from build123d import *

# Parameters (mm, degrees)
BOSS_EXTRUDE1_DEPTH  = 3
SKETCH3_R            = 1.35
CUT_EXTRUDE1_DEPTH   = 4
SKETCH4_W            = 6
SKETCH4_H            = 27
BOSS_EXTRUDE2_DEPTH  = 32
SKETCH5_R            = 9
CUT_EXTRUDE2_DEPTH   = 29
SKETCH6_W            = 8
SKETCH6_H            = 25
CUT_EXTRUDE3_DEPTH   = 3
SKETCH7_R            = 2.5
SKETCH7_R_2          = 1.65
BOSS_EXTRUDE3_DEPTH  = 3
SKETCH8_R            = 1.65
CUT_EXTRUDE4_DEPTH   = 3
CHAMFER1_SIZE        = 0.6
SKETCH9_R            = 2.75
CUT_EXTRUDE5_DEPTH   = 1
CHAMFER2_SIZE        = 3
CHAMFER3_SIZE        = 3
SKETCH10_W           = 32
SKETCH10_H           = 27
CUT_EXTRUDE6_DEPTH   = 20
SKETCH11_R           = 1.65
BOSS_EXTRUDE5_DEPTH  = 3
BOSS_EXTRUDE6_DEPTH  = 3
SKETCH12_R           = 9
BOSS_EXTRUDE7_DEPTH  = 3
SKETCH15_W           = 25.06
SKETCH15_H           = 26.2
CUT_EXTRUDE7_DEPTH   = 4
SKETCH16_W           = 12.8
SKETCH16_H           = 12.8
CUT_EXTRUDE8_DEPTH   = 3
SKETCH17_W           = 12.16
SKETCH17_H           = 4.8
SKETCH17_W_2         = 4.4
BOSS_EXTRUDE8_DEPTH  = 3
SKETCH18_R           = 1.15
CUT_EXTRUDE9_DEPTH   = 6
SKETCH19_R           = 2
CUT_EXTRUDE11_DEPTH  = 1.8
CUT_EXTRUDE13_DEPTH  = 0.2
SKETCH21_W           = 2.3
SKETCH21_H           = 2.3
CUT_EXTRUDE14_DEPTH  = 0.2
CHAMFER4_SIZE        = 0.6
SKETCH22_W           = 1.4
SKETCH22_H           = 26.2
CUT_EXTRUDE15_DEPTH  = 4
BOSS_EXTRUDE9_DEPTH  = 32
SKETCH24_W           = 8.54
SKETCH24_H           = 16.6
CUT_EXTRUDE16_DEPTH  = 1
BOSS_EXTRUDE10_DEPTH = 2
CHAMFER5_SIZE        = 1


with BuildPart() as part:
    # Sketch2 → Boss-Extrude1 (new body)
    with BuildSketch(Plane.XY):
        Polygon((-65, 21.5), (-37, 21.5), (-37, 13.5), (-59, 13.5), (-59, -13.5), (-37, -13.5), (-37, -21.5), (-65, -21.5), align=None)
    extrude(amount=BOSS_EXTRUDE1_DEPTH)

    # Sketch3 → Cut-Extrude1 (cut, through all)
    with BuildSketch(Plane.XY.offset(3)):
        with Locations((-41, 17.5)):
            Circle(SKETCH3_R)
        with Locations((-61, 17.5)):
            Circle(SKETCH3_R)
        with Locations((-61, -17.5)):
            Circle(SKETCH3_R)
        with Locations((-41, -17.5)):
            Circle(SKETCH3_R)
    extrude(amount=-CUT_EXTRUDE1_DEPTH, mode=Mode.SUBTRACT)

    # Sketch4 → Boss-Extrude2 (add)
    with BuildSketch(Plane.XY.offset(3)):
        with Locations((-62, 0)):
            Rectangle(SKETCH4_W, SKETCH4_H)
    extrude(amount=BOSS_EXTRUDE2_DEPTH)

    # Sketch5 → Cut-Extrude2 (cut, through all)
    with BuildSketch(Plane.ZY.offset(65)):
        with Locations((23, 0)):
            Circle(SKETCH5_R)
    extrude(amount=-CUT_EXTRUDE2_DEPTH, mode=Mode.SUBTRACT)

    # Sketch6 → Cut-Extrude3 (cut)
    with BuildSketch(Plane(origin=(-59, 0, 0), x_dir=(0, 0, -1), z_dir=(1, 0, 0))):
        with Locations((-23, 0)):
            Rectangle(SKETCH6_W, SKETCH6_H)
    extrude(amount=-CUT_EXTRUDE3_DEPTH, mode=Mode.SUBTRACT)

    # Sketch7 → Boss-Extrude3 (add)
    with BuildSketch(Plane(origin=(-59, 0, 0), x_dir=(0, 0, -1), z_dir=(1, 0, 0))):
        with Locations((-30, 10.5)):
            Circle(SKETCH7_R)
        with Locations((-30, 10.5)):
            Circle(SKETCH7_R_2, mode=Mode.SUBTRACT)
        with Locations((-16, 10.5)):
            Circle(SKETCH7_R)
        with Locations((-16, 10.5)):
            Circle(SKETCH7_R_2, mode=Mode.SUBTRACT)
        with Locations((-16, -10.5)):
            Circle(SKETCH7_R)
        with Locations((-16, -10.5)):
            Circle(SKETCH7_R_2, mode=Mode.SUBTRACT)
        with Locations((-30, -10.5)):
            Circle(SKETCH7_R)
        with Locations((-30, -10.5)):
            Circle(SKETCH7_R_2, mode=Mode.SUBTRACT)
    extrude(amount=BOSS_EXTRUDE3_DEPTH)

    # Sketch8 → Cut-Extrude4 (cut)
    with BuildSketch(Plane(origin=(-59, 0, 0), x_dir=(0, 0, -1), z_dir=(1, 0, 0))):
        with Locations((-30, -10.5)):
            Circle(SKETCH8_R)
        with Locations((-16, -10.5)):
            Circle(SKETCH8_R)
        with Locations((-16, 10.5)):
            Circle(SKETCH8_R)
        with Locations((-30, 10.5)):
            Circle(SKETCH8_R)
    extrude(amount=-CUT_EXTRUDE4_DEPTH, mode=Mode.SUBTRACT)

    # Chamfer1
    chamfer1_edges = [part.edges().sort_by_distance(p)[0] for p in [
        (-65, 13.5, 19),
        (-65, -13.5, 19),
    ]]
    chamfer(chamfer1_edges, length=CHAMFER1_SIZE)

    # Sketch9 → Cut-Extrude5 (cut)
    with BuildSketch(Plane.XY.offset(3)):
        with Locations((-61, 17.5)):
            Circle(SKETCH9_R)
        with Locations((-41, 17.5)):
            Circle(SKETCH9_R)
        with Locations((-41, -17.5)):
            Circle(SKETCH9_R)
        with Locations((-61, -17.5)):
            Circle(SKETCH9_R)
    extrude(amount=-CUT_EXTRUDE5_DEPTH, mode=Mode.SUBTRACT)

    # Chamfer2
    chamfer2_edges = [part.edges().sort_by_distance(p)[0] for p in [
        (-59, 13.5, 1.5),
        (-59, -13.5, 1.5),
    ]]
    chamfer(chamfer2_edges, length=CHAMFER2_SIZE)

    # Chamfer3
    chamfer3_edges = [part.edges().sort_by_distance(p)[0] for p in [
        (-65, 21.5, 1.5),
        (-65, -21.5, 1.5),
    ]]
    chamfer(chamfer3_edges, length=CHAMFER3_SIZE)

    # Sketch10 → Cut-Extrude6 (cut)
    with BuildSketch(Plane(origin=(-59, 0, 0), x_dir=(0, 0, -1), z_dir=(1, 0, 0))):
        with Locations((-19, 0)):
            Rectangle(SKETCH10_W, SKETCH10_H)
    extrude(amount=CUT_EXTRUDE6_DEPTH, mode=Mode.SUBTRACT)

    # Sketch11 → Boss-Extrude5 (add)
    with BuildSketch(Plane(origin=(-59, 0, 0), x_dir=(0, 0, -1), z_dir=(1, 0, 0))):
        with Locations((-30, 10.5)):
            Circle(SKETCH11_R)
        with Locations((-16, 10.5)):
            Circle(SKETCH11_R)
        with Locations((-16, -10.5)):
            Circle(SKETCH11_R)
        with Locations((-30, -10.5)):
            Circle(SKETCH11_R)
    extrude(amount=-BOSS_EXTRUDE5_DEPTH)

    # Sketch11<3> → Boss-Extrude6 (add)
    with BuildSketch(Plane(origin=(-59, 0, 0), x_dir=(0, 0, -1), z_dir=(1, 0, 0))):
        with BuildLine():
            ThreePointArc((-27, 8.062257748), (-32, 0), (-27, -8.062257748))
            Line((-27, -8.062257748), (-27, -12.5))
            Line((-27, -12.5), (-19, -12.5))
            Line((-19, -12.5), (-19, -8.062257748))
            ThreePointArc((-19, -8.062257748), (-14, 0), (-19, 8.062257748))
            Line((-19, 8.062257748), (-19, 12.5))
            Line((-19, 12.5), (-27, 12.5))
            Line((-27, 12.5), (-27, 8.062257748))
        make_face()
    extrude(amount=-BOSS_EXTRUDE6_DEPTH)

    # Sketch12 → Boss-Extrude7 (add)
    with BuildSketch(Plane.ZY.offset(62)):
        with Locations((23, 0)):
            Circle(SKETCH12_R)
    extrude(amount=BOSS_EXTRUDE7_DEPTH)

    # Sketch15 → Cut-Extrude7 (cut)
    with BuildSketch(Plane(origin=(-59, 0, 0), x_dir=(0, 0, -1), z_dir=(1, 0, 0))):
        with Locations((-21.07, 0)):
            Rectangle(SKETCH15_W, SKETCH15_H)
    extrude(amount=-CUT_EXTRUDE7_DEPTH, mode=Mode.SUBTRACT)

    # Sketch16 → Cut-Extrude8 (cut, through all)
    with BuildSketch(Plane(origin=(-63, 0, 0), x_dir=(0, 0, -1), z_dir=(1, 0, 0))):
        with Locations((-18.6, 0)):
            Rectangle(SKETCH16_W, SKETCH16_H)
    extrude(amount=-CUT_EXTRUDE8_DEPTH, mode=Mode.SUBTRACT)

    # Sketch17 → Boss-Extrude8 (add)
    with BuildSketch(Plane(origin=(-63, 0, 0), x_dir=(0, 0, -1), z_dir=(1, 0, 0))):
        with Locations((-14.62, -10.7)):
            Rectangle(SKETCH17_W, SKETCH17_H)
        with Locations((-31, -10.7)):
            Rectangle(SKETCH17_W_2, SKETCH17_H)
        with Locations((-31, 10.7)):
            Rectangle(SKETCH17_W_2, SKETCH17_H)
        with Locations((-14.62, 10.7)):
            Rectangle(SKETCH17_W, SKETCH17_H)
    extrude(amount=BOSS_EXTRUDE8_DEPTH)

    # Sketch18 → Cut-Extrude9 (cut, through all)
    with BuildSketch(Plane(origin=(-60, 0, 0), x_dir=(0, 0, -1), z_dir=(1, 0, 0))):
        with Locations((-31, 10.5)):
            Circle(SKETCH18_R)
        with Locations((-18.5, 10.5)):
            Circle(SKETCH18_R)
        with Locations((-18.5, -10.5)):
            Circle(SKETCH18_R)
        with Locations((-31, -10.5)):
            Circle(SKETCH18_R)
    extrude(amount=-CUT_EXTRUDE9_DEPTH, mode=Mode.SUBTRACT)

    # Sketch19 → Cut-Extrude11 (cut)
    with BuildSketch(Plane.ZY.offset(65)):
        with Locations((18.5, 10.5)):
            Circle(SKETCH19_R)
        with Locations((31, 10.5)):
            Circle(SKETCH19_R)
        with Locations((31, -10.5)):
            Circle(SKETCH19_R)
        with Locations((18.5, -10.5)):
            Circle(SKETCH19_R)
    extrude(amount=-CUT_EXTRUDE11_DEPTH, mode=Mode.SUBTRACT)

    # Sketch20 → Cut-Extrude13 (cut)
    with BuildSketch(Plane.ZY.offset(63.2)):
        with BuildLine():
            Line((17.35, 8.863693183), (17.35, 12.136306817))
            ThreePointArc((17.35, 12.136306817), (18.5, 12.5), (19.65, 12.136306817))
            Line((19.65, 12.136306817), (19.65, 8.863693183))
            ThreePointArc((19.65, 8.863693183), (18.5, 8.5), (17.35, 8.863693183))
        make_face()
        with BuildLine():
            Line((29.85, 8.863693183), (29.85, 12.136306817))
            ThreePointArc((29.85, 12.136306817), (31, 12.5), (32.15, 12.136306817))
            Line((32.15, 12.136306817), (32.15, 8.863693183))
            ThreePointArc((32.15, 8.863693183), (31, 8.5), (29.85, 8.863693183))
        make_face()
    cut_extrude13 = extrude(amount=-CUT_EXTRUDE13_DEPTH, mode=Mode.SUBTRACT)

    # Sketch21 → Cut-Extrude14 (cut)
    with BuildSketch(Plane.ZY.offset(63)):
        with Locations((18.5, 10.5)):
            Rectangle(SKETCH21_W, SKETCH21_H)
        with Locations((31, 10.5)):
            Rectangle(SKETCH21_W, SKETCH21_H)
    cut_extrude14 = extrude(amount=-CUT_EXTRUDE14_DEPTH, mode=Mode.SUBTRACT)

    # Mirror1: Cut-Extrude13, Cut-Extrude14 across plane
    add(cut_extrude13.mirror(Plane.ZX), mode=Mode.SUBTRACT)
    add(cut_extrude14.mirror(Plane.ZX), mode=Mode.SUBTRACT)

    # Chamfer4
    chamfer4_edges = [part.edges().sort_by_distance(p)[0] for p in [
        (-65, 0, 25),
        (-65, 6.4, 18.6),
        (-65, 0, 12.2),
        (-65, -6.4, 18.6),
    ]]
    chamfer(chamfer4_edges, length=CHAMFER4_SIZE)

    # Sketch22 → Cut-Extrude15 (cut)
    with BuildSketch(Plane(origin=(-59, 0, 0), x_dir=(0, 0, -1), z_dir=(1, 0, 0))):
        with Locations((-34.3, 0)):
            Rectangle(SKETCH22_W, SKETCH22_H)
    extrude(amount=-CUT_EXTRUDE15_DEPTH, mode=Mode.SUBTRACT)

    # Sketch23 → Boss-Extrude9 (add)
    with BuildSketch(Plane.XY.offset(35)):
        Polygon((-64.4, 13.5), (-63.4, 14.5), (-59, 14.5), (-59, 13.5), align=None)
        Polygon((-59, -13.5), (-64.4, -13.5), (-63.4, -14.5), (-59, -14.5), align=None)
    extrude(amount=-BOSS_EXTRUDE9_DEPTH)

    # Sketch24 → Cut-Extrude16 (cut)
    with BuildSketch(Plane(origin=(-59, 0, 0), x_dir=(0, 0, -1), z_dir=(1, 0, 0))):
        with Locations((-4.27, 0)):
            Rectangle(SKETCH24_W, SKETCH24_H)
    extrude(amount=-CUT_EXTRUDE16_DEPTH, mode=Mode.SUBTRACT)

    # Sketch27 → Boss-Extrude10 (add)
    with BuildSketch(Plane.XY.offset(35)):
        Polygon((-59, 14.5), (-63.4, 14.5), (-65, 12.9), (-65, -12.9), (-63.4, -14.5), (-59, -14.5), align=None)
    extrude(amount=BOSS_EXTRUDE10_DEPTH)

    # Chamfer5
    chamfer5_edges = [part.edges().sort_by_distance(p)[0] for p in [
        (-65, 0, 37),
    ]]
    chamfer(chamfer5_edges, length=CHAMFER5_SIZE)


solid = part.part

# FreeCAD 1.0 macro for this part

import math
import FreeCAD as App
import Part
import Sketcher

V = App.Vector
Q = App.Units.Quantity


def edges_at(feature, points):
    """Names of the edges that pass closest to the given points."""
    edges = feature.Shape.Edges
    near = lambda p: min(range(len(edges)), key=lambda i: edges[i].distToShape(Part.Vertex(*p))[0])
    return sorted({f"Edge{near(p) + 1}" for p in points})

doc = App.newDocument("Part")
body = doc.addObject("PartDesign::Body", "Body")

sketch1 = body.newObject("Sketcher::SketchObject", "Sketch")
sketch1.AttachmentSupport = (doc.getObject("XY_Plane"), [""])
sketch1.MapMode = "FlatFace"
sketch1.addGeometry([
    Part.LineSegment(V(-37, 22, 0), V(-65, 22, 0)),
    Part.LineSegment(V(-65, 22, 0), V(-65, -22, 0)),
    Part.LineSegment(V(-65, -22, 0), V(-37, -22, 0)),
    Part.LineSegment(V(-37, -22, 0), V(-37, -14, 0)),
    Part.LineSegment(V(-37, -14, 0), V(-59, -14, 0)),
    Part.LineSegment(V(-59, -14, 0), V(-59, 14, 0)),
    Part.LineSegment(V(-59, 14, 0), V(-37, 14, 0)),
    Part.LineSegment(V(-37, 14, 0), V(-37, 22, 0)),
], False)
sketch1.addConstraint([
    Sketcher.Constraint("Coincident", 0, 2, 1, 1),
    Sketcher.Constraint("Coincident", 1, 2, 2, 1),
    Sketcher.Constraint("Coincident", 2, 2, 3, 1),
    Sketcher.Constraint("Coincident", 3, 2, 4, 1),
    Sketcher.Constraint("Coincident", 4, 2, 5, 1),
    Sketcher.Constraint("Coincident", 5, 2, 6, 1),
    Sketcher.Constraint("Coincident", 6, 2, 7, 1),
    Sketcher.Constraint("Coincident", 7, 2, 0, 1),
    Sketcher.Constraint("Horizontal", 0),
    Sketcher.Constraint("Vertical", 1),
    Sketcher.Constraint("Horizontal", 2),
    Sketcher.Constraint("Vertical", 3),
    Sketcher.Constraint("Horizontal", 4),
    Sketcher.Constraint("Vertical", 5),
    Sketcher.Constraint("Horizontal", 6),
    Sketcher.Constraint("Vertical", 7),
    Sketcher.Constraint("Symmetric", 3, 2, 6, 2, -1),
    Sketcher.Constraint("Equal", 3, 7),
    Sketcher.Constraint("DistanceX", 0, 2, 0, 1, Q("28 mm")),
    Sketcher.Constraint("DistanceX", 4, 2, 4, 1, Q("22 mm")),
    Sketcher.Constraint("DistanceY", 1, 2, 1, 1, Q("43 mm")),
    Sketcher.Constraint("DistanceY", 3, 1, 3, 2, Q("8 mm")),
    Sketcher.Constraint("DistanceX", 0, 2, -1, 1, Q("65 mm")),
])
pad1 = body.newObject("PartDesign::Pad", "Pad")
pad1.Profile = sketch1
pad1.Length = 3

sketch2 = body.newObject("Sketcher::SketchObject", "Sketch001")
sketch2.AttachmentSupport = (doc.getObject("XY_Plane"), [""])
sketch2.MapMode = "FlatFace"
sketch2.AttachmentOffset = App.Placement(V(0, 0, 3), App.Rotation())
sketch2.addGeometry([
    Part.Circle(V(-41, 17.5, 0), V(0, 0, 1), 1.4),
    Part.Circle(V(-61, 17.5, 0), V(0, 0, 1), 1.4),
    Part.Circle(V(-61, -17.5, 0), V(0, 0, 1), 1.4),
    Part.Circle(V(-41, -17.5, 0), V(0, 0, 1), 1.4),
], False)
sketch2.addConstraint([
    Sketcher.Constraint("Equal", 0, 1),
    Sketcher.Constraint("Equal", 1, 2),
    Sketcher.Constraint("Equal", 2, 3),
    Sketcher.Constraint("Symmetric", 1, 3, 2, 3, -1),
    Sketcher.Constraint("Symmetric", 0, 3, 3, 3, -1),
    Sketcher.Constraint("Horizontal", 0, 3, 1, 3),
    Sketcher.Constraint("Diameter", 0, Q("2.7 mm")),
    Sketcher.Constraint("DistanceX", 0, 3, -1, 1, Q("41 mm")),
    Sketcher.Constraint("DistanceX", 1, 3, -1, 1, Q("61 mm")),
    Sketcher.Constraint("DistanceY", 2, 3, 1, 3, Q("35 mm")),
])
pocket1 = body.newObject("PartDesign::Pocket", "Pocket")
pocket1.Profile = sketch2
pocket1.Type = "ThroughAll"

sketch3 = body.newObject("Sketcher::SketchObject", "Sketch002")
sketch3.AttachmentSupport = (doc.getObject("XY_Plane"), [""])
sketch3.MapMode = "FlatFace"
sketch3.AttachmentOffset = App.Placement(V(0, 0, 3), App.Rotation())
sketch3.addGeometry([
    Part.LineSegment(V(-65, 14, 0), V(-65, -14, 0)),
    Part.LineSegment(V(-65, -14, 0), V(-59, -14, 0)),
    Part.LineSegment(V(-59, -14, 0), V(-59, 14, 0)),
    Part.LineSegment(V(-59, 14, 0), V(-65, 14, 0)),
], False)
sketch3.addConstraint([
    Sketcher.Constraint("Coincident", 0, 2, 1, 1),
    Sketcher.Constraint("Coincident", 1, 2, 2, 1),
    Sketcher.Constraint("Coincident", 2, 2, 3, 1),
    Sketcher.Constraint("Coincident", 3, 2, 0, 1),
    Sketcher.Constraint("Vertical", 0),
    Sketcher.Constraint("Horizontal", 1),
    Sketcher.Constraint("Vertical", 2),
    Sketcher.Constraint("Horizontal", 3),
    Sketcher.Constraint("DistanceX", 1, 1, 1, 2, Q("6 mm")),
    Sketcher.Constraint("DistanceY", 0, 2, 0, 1, Q("27 mm")),
    Sketcher.Constraint("DistanceX", 0, 2, -1, 1, Q("65 mm")),
    Sketcher.Constraint("DistanceY", 0, 2, -1, 1, Q("13.5 mm")),
])
pad2 = body.newObject("PartDesign::Pad", "Pad001")
pad2.Profile = sketch3
pad2.Length = 32

sketch4 = body.newObject("Sketcher::SketchObject", "Sketch003")
sketch4.AttachmentSupport = (doc.getObject("YZ_Plane"), [""])
sketch4.MapMode = "FlatFace"
sketch4.AttachmentOffset = App.Placement(V(0, 0, -65), App.Rotation())
sketch4.addGeometry(Part.Circle(V(0, 23, 0), V(0, 0, 1), 9), False)
sketch4.addConstraint([
    Sketcher.Constraint("PointOnObject", 0, 3, -2),
    Sketcher.Constraint("Diameter", 0, Q("18 mm")),
    Sketcher.Constraint("DistanceY", -1, 1, 0, 3, Q("23 mm")),
])
pocket2 = body.newObject("PartDesign::Pocket", "Pocket001")
pocket2.Profile = sketch4
pocket2.Type = "ThroughAll"
pocket2.Reversed = True

sketch5 = body.newObject("Sketcher::SketchObject", "Sketch004")
sketch5.AttachmentSupport = (doc.getObject("YZ_Plane"), [""])
sketch5.MapMode = "FlatFace"
sketch5.AttachmentOffset = App.Placement(V(0, 0, -59), App.Rotation())
sketch5.addGeometry([
    Part.LineSegment(V(12, 27, 0), V(-12, 27, 0)),
    Part.LineSegment(V(-12, 27, 0), V(-12, 19, 0)),
    Part.LineSegment(V(-12, 19, 0), V(12, 19, 0)),
    Part.LineSegment(V(12, 19, 0), V(12, 27, 0)),
], False)
sketch5.addConstraint([
    Sketcher.Constraint("Coincident", 0, 2, 1, 1),
    Sketcher.Constraint("Coincident", 1, 2, 2, 1),
    Sketcher.Constraint("Coincident", 2, 2, 3, 1),
    Sketcher.Constraint("Coincident", 3, 2, 0, 1),
    Sketcher.Constraint("Horizontal", 0),
    Sketcher.Constraint("Vertical", 1),
    Sketcher.Constraint("Horizontal", 2),
    Sketcher.Constraint("Vertical", 3),
    Sketcher.Constraint("DistanceX", 0, 2, 0, 1, Q("25 mm")),
    Sketcher.Constraint("DistanceY", 1, 2, 1, 1, Q("8 mm")),
    Sketcher.Constraint("DistanceY", -1, 1, 0, 2, Q("27 mm")),
    Sketcher.Constraint("DistanceX", 0, 2, -1, 1, Q("12.5 mm")),
])
pocket3 = body.newObject("PartDesign::Pocket", "Pocket002")
pocket3.Profile = sketch5
pocket3.Length = 3

sketch6 = body.newObject("Sketcher::SketchObject", "Sketch005")
sketch6.AttachmentSupport = (doc.getObject("YZ_Plane"), [""])
sketch6.MapMode = "FlatFace"
sketch6.AttachmentOffset = App.Placement(V(0, 0, -59), App.Rotation())
sketch6.addGeometry([
    Part.Circle(V(10.5, 30, 0), V(0, 0, 1), 2.5),
    Part.Circle(V(10.5, 30, 0), V(0, 0, 1), 1.6),
    Part.Circle(V(10.5, 16, 0), V(0, 0, 1), 2.5),
    Part.Circle(V(10.5, 16, 0), V(0, 0, 1), 1.6),
    Part.Circle(V(-10.5, 16, 0), V(0, 0, 1), 2.5),
    Part.Circle(V(-10.5, 16, 0), V(0, 0, 1), 1.6),
    Part.Circle(V(-10.5, 30, 0), V(0, 0, 1), 2.5),
    Part.Circle(V(-10.5, 30, 0), V(0, 0, 1), 1.6),
], False)
sketch6.addConstraint([
    Sketcher.Constraint("Coincident", 1, 3, 0, 3),
    Sketcher.Constraint("Coincident", 3, 3, 2, 3),
    Sketcher.Constraint("Coincident", 5, 3, 4, 3),
    Sketcher.Constraint("Coincident", 7, 3, 6, 3),
    Sketcher.Constraint("Equal", 0, 2),
    Sketcher.Constraint("Equal", 1, 3),
    Sketcher.Constraint("Equal", 2, 4),
    Sketcher.Constraint("Equal", 3, 5),
    Sketcher.Constraint("Equal", 4, 6),
    Sketcher.Constraint("Equal", 5, 7),
    Sketcher.Constraint("Symmetric", 2, 3, 4, 3, -2),
    Sketcher.Constraint("Symmetric", 0, 3, 6, 3, -2),
    Sketcher.Constraint("Vertical", 1, 3, 2, 3),
    Sketcher.Constraint("Diameter", 0, Q("5 mm")),
    Sketcher.Constraint("Diameter", 1, Q("3.3 mm")),
    Sketcher.Constraint("DistanceY", -1, 1, 0, 3, Q("30 mm")),
    Sketcher.Constraint("DistanceY", -1, 1, 2, 3, Q("16 mm")),
    Sketcher.Constraint("DistanceX", 4, 3, 2, 3, Q("21 mm")),
])
pad3 = body.newObject("PartDesign::Pad", "Pad002")
pad3.Profile = sketch6
pad3.Length = 3

sketch7 = body.newObject("Sketcher::SketchObject", "Sketch006")
sketch7.AttachmentSupport = (doc.getObject("YZ_Plane"), [""])
sketch7.MapMode = "FlatFace"
sketch7.AttachmentOffset = App.Placement(V(0, 0, -59), App.Rotation())
sketch7.addGeometry([
    Part.Circle(V(-10.5, 30, 0), V(0, 0, 1), 1.6),
    Part.Circle(V(-10.5, 16, 0), V(0, 0, 1), 1.6),
    Part.Circle(V(10.5, 16, 0), V(0, 0, 1), 1.6),
    Part.Circle(V(10.5, 30, 0), V(0, 0, 1), 1.6),
], False)
sketch7.addConstraint([
    Sketcher.Constraint("Equal", 0, 1),
    Sketcher.Constraint("Equal", 1, 2),
    Sketcher.Constraint("Equal", 2, 3),
    Sketcher.Constraint("Symmetric", 1, 3, 2, 3, -2),
    Sketcher.Constraint("Symmetric", 0, 3, 3, 3, -2),
    Sketcher.Constraint("Vertical", 0, 3, 1, 3),
    Sketcher.Constraint("Diameter", 0, Q("3.3 mm")),
    Sketcher.Constraint("DistanceY", -1, 1, 0, 3, Q("30 mm")),
    Sketcher.Constraint("DistanceY", -1, 1, 1, 3, Q("16 mm")),
    Sketcher.Constraint("DistanceX", 1, 3, 2, 3, Q("21 mm")),
])
pocket4 = body.newObject("PartDesign::Pocket", "Pocket003")
pocket4.Profile = sketch7
pocket4.Length = 3
doc.recompute()

chamfer = body.newObject("PartDesign::Chamfer", "Chamfer")
chamfer.Base = (pocket4, edges_at(pocket4, [(-65, 13.5, 19), (-65, -13.5, 19)]))
chamfer.Size = 0.6

sketch8 = body.newObject("Sketcher::SketchObject", "Sketch007")
sketch8.AttachmentSupport = (doc.getObject("XY_Plane"), [""])
sketch8.MapMode = "FlatFace"
sketch8.AttachmentOffset = App.Placement(V(0, 0, 3), App.Rotation())
sketch8.addGeometry([
    Part.Circle(V(-61, 17.5, 0), V(0, 0, 1), 2.8),
    Part.Circle(V(-41, 17.5, 0), V(0, 0, 1), 2.8),
    Part.Circle(V(-41, -17.5, 0), V(0, 0, 1), 2.8),
    Part.Circle(V(-61, -17.5, 0), V(0, 0, 1), 2.8),
], False)
sketch8.addConstraint([
    Sketcher.Constraint("Equal", 0, 1),
    Sketcher.Constraint("Equal", 1, 2),
    Sketcher.Constraint("Equal", 2, 3),
    Sketcher.Constraint("Symmetric", 1, 3, 2, 3, -1),
    Sketcher.Constraint("Symmetric", 0, 3, 3, 3, -1),
    Sketcher.Constraint("Horizontal", 0, 3, 1, 3),
    Sketcher.Constraint("Diameter", 0, Q("5.5 mm")),
    Sketcher.Constraint("DistanceX", 0, 3, -1, 1, Q("61 mm")),
    Sketcher.Constraint("DistanceX", 1, 3, -1, 1, Q("41 mm")),
    Sketcher.Constraint("DistanceY", 2, 3, 1, 3, Q("35 mm")),
])
pocket5 = body.newObject("PartDesign::Pocket", "Pocket004")
pocket5.Profile = sketch8
pocket5.Length = 1
doc.recompute()

chamfer2 = body.newObject("PartDesign::Chamfer", "Chamfer001")
chamfer2.Base = (pocket5, edges_at(pocket5, [(-59, 13.5, 1.5), (-59, -13.5, 1.5)]))
chamfer2.Size = 3
doc.recompute()

chamfer3 = body.newObject("PartDesign::Chamfer", "Chamfer002")
chamfer3.Base = (chamfer2, edges_at(chamfer2, [(-65, 21.5, 1.5), (-65, -21.5, 1.5)]))
chamfer3.Size = 3

sketch9 = body.newObject("Sketcher::SketchObject", "Sketch008")
sketch9.AttachmentSupport = (doc.getObject("YZ_Plane"), [""])
sketch9.MapMode = "FlatFace"
sketch9.AttachmentOffset = App.Placement(V(0, 0, -59), App.Rotation())
sketch9.addGeometry([
    Part.LineSegment(V(14, 35, 0), V(-14, 35, 0)),
    Part.LineSegment(V(-14, 35, 0), V(-14, 3, 0)),
    Part.LineSegment(V(-14, 3, 0), V(14, 3, 0)),
    Part.LineSegment(V(14, 3, 0), V(14, 35, 0)),
], False)
sketch9.addConstraint([
    Sketcher.Constraint("Coincident", 0, 2, 1, 1),
    Sketcher.Constraint("Coincident", 1, 2, 2, 1),
    Sketcher.Constraint("Coincident", 2, 2, 3, 1),
    Sketcher.Constraint("Coincident", 3, 2, 0, 1),
    Sketcher.Constraint("Horizontal", 0),
    Sketcher.Constraint("Vertical", 1),
    Sketcher.Constraint("Horizontal", 2),
    Sketcher.Constraint("Vertical", 3),
    Sketcher.Constraint("DistanceX", 0, 2, 0, 1, Q("27 mm")),
    Sketcher.Constraint("DistanceY", 1, 2, 1, 1, Q("32 mm")),
    Sketcher.Constraint("DistanceY", -1, 1, 0, 2, Q("35 mm")),
    Sketcher.Constraint("DistanceX", 0, 2, -1, 1, Q("13.5 mm")),
])
pocket6 = body.newObject("PartDesign::Pocket", "Pocket005")
pocket6.Profile = sketch9
pocket6.Length = 20
pocket6.Reversed = True

sketch10 = body.newObject("Sketcher::SketchObject", "Sketch009")
sketch10.AttachmentSupport = (doc.getObject("YZ_Plane"), [""])
sketch10.MapMode = "FlatFace"
sketch10.AttachmentOffset = App.Placement(V(0, 0, -59), App.Rotation())
sketch10.addGeometry([
    Part.Circle(V(10.5, 30, 0), V(0, 0, 1), 1.6),
    Part.Circle(V(10.5, 16, 0), V(0, 0, 1), 1.6),
    Part.Circle(V(-10.5, 16, 0), V(0, 0, 1), 1.6),
    Part.Circle(V(-10.5, 30, 0), V(0, 0, 1), 1.6),
], False)
sketch10.addConstraint([
    Sketcher.Constraint("Equal", 0, 1),
    Sketcher.Constraint("Equal", 1, 2),
    Sketcher.Constraint("Equal", 2, 3),
    Sketcher.Constraint("Symmetric", 1, 3, 2, 3, -2),
    Sketcher.Constraint("Symmetric", 0, 3, 3, 3, -2),
    Sketcher.Constraint("Vertical", 0, 3, 1, 3),
    Sketcher.Constraint("Diameter", 0, Q("3.3 mm")),
    Sketcher.Constraint("DistanceY", -1, 1, 0, 3, Q("30 mm")),
    Sketcher.Constraint("DistanceY", -1, 1, 1, 3, Q("16 mm")),
    Sketcher.Constraint("DistanceX", 2, 3, 1, 3, Q("21 mm")),
])
pad4 = body.newObject("PartDesign::Pad", "Pad003")
pad4.Profile = sketch10
pad4.Length = 3
pad4.Reversed = True

sketch11 = body.newObject("Sketcher::SketchObject", "Sketch010")
sketch11.AttachmentSupport = (doc.getObject("YZ_Plane"), [""])
sketch11.MapMode = "FlatFace"
sketch11.AttachmentOffset = App.Placement(V(0, 0, -59), App.Rotation())
sketch11.addGeometry([
    Part.ArcOfCircle(Part.Circle(V(0, 23, 0), V(0, 0, 1), 9), math.radians(26), math.radians(154)),
    Part.LineSegment(V(-8.1, 27, 0), V(-12.5, 27, 0)),
    Part.LineSegment(V(-12.5, 27, 0), V(-12.5, 19, 0)),
    Part.LineSegment(V(-12.5, 19, 0), V(-8.1, 19, 0)),
    Part.ArcOfCircle(Part.Circle(V(0, 23, 0), V(0, 0, 1), 9), math.radians(-154), math.radians(-26)),
    Part.LineSegment(V(8.1, 19, 0), V(12.5, 19, 0)),
    Part.LineSegment(V(12.5, 19, 0), V(12.5, 27, 0)),
    Part.LineSegment(V(12.5, 27, 0), V(8.1, 27, 0)),
], False)
sketch11.addConstraint([
    Sketcher.Constraint("Coincident", 0, 2, 1, 1),
    Sketcher.Constraint("Coincident", 1, 2, 2, 1),
    Sketcher.Constraint("Coincident", 2, 2, 3, 1),
    Sketcher.Constraint("Coincident", 3, 2, 4, 1),
    Sketcher.Constraint("Coincident", 4, 2, 5, 1),
    Sketcher.Constraint("Coincident", 5, 2, 6, 1),
    Sketcher.Constraint("Coincident", 6, 2, 7, 1),
    Sketcher.Constraint("Coincident", 7, 2, 0, 1),
    Sketcher.Constraint("Horizontal", 1),
    Sketcher.Constraint("Vertical", 2),
    Sketcher.Constraint("Horizontal", 3),
    Sketcher.Constraint("Horizontal", 5),
    Sketcher.Constraint("Vertical", 6),
    Sketcher.Constraint("Horizontal", 7),
    Sketcher.Constraint("Coincident", 4, 3, 0, 3),
    Sketcher.Constraint("Equal", 0, 4),
    Sketcher.Constraint("Symmetric", 3, 2, 4, 2, -2),
    Sketcher.Constraint("Symmetric", 1, 2, 6, 2, -2),
    Sketcher.Constraint("Vertical", 0, 2, 3, 2),
    Sketcher.Constraint("Radius", 0, Q("9 mm")),
    Sketcher.Constraint("DistanceY", 2, 2, 2, 1, Q("8 mm")),
    Sketcher.Constraint("DistanceY", -1, 1, 0, 3, Q("23 mm")),
    Sketcher.Constraint("DistanceX", 1, 2, -1, 1, Q("12.5 mm")),
])
pad5 = body.newObject("PartDesign::Pad", "Pad004")
pad5.Profile = sketch11
pad5.Length = 3
pad5.Reversed = True

sketch12 = body.newObject("Sketcher::SketchObject", "Sketch011")
sketch12.AttachmentSupport = (doc.getObject("YZ_Plane"), [""])
sketch12.MapMode = "FlatFace"
sketch12.AttachmentOffset = App.Placement(V(0, 0, -62), App.Rotation())
sketch12.addGeometry(Part.Circle(V(0, 23, 0), V(0, 0, 1), 9), False)
sketch12.addConstraint([
    Sketcher.Constraint("PointOnObject", 0, 3, -2),
    Sketcher.Constraint("Diameter", 0, Q("18 mm")),
    Sketcher.Constraint("DistanceY", -1, 1, 0, 3, Q("23 mm")),
])
pad6 = body.newObject("PartDesign::Pad", "Pad005")
pad6.Profile = sketch12
pad6.Length = 3
pad6.Reversed = True

sketch13 = body.newObject("Sketcher::SketchObject", "Sketch012")
sketch13.AttachmentSupport = (doc.getObject("YZ_Plane"), [""])
sketch13.MapMode = "FlatFace"
sketch13.AttachmentOffset = App.Placement(V(0, 0, -59), App.Rotation())
sketch13.addGeometry([
    Part.LineSegment(V(13, 34, 0), V(-13, 34, 0)),
    Part.LineSegment(V(-13, 34, 0), V(-13, 9, 0)),
    Part.LineSegment(V(-13, 9, 0), V(13, 9, 0)),
    Part.LineSegment(V(13, 9, 0), V(13, 34, 0)),
], False)
sketch13.addConstraint([
    Sketcher.Constraint("Coincident", 0, 2, 1, 1),
    Sketcher.Constraint("Coincident", 1, 2, 2, 1),
    Sketcher.Constraint("Coincident", 2, 2, 3, 1),
    Sketcher.Constraint("Coincident", 3, 2, 0, 1),
    Sketcher.Constraint("Horizontal", 0),
    Sketcher.Constraint("Vertical", 1),
    Sketcher.Constraint("Horizontal", 2),
    Sketcher.Constraint("Vertical", 3),
    Sketcher.Constraint("DistanceX", 0, 2, 0, 1, Q("26.2 mm")),
    Sketcher.Constraint("DistanceY", 1, 2, 1, 1, Q("25.06 mm")),
    Sketcher.Constraint("DistanceX", 0, 2, -1, 1, Q("13.1 mm")),
    Sketcher.Constraint("DistanceY", -1, 1, 0, 2, Q("33.6 mm")),
])
pocket7 = body.newObject("PartDesign::Pocket", "Pocket006")
pocket7.Profile = sketch13
pocket7.Length = 4

sketch14 = body.newObject("Sketcher::SketchObject", "Sketch013")
sketch14.AttachmentSupport = (doc.getObject("YZ_Plane"), [""])
sketch14.MapMode = "FlatFace"
sketch14.AttachmentOffset = App.Placement(V(0, 0, -63), App.Rotation())
sketch14.addGeometry([
    Part.LineSegment(V(6, 25, 0), V(-6, 25, 0)),
    Part.LineSegment(V(-6, 25, 0), V(-6, 12, 0)),
    Part.LineSegment(V(-6, 12, 0), V(6, 12, 0)),
    Part.LineSegment(V(6, 12, 0), V(6, 25, 0)),
], False)
sketch14.addConstraint([
    Sketcher.Constraint("Coincident", 0, 2, 1, 1),
    Sketcher.Constraint("Coincident", 1, 2, 2, 1),
    Sketcher.Constraint("Coincident", 2, 2, 3, 1),
    Sketcher.Constraint("Coincident", 3, 2, 0, 1),
    Sketcher.Constraint("Horizontal", 0),
    Sketcher.Constraint("Vertical", 1),
    Sketcher.Constraint("Horizontal", 2),
    Sketcher.Constraint("Vertical", 3),
    Sketcher.Constraint("Equal", 2, 1),
    Sketcher.Constraint("DistanceX", 0, 2, 0, 1, Q("12.8 mm")),
    Sketcher.Constraint("DistanceY", -1, 1, 0, 2, Q("25 mm")),
    Sketcher.Constraint("DistanceX", 0, 2, -1, 1, Q("6.4 mm")),
])
pocket8 = body.newObject("PartDesign::Pocket", "Pocket007")
pocket8.Profile = sketch14
pocket8.Type = "ThroughAll"

sketch15 = body.newObject("Sketcher::SketchObject", "Sketch014")
sketch15.AttachmentSupport = (doc.getObject("YZ_Plane"), [""])
sketch15.MapMode = "FlatFace"
sketch15.AttachmentOffset = App.Placement(V(0, 0, -63), App.Rotation())
sketch15.addGeometry([
    Part.LineSegment(V(-8.3, 20.7, 0), V(-13.1, 20.7, 0)),
    Part.LineSegment(V(-13.1, 20.7, 0), V(-13.1, 8.5, 0)),
    Part.LineSegment(V(-13.1, 8.5, 0), V(-8.3, 8.5, 0)),
    Part.LineSegment(V(-8.3, 8.5, 0), V(-8.3, 20.7, 0)),
    Part.LineSegment(V(-8.3, 33.2, 0), V(-13.1, 33.2, 0)),
    Part.LineSegment(V(-13.1, 33.2, 0), V(-13.1, 28.8, 0)),
    Part.LineSegment(V(-13.1, 28.8, 0), V(-8.3, 28.8, 0)),
    Part.LineSegment(V(-8.3, 28.8, 0), V(-8.3, 33.2, 0)),
    Part.LineSegment(V(13.1, 33.2, 0), V(8.3, 33.2, 0)),
    Part.LineSegment(V(8.3, 33.2, 0), V(8.3, 28.8, 0)),
    Part.LineSegment(V(8.3, 28.8, 0), V(13.1, 28.8, 0)),
    Part.LineSegment(V(13.1, 28.8, 0), V(13.1, 33.2, 0)),
    Part.LineSegment(V(13.1, 20.7, 0), V(8.3, 20.7, 0)),
    Part.LineSegment(V(8.3, 20.7, 0), V(8.3, 8.5, 0)),
    Part.LineSegment(V(8.3, 8.5, 0), V(13.1, 8.5, 0)),
    Part.LineSegment(V(13.1, 8.5, 0), V(13.1, 20.7, 0)),
], False)
sketch15.addConstraint([
    Sketcher.Constraint("Coincident", 0, 2, 1, 1),
    Sketcher.Constraint("Coincident", 1, 2, 2, 1),
    Sketcher.Constraint("Coincident", 2, 2, 3, 1),
    Sketcher.Constraint("Coincident", 3, 2, 0, 1),
    Sketcher.Constraint("Coincident", 4, 2, 5, 1),
    Sketcher.Constraint("Coincident", 5, 2, 6, 1),
    Sketcher.Constraint("Coincident", 6, 2, 7, 1),
    Sketcher.Constraint("Coincident", 7, 2, 4, 1),
    Sketcher.Constraint("Coincident", 8, 2, 9, 1),
    Sketcher.Constraint("Coincident", 9, 2, 10, 1),
    Sketcher.Constraint("Coincident", 10, 2, 11, 1),
    Sketcher.Constraint("Coincident", 11, 2, 8, 1),
    Sketcher.Constraint("Coincident", 12, 2, 13, 1),
    Sketcher.Constraint("Coincident", 13, 2, 14, 1),
    Sketcher.Constraint("Coincident", 14, 2, 15, 1),
    Sketcher.Constraint("Coincident", 15, 2, 12, 1),
    Sketcher.Constraint("Horizontal", 0),
    Sketcher.Constraint("Vertical", 1),
    Sketcher.Constraint("Horizontal", 2),
    Sketcher.Constraint("Vertical", 3),
    Sketcher.Constraint("Horizontal", 4),
    Sketcher.Constraint("Vertical", 5),
    Sketcher.Constraint("Horizontal", 6),
    Sketcher.Constraint("Vertical", 7),
    Sketcher.Constraint("Horizontal", 8),
    Sketcher.Constraint("Vertical", 9),
    Sketcher.Constraint("Horizontal", 10),
    Sketcher.Constraint("Vertical", 11),
    Sketcher.Constraint("Horizontal", 12),
    Sketcher.Constraint("Vertical", 13),
    Sketcher.Constraint("Horizontal", 14),
    Sketcher.Constraint("Vertical", 15),
    Sketcher.Constraint("Symmetric", 7, 2, 8, 2, -2),
    Sketcher.Constraint("Symmetric", 5, 2, 10, 2, -2),
    Sketcher.Constraint("Symmetric", 3, 2, 12, 2, -2),
    Sketcher.Constraint("Symmetric", 1, 2, 14, 2, -2),
    Sketcher.Constraint("Vertical", 1, 2, 4, 2),
    Sketcher.Constraint("Vertical", 3, 2, 6, 2),
    Sketcher.Constraint("DistanceX", 0, 2, 0, 1, Q("4.8 mm")),
    Sketcher.Constraint("DistanceY", 5, 2, 5, 1, Q("4.4 mm")),
    Sketcher.Constraint("DistanceY", 1, 2, 1, 1, Q("12.16 mm")),
    Sketcher.Constraint("DistanceX", 0, 2, -1, 1, Q("13.1 mm")),
    Sketcher.Constraint("DistanceY", -1, 1, 0, 2, Q("20.7 mm")),
    Sketcher.Constraint("DistanceY", -1, 1, 4, 2, Q("33.2 mm")),
])
pad7 = body.newObject("PartDesign::Pad", "Pad006")
pad7.Profile = sketch15
pad7.Length = 3

sketch16 = body.newObject("Sketcher::SketchObject", "Sketch015")
sketch16.AttachmentSupport = (doc.getObject("YZ_Plane"), [""])
sketch16.MapMode = "FlatFace"
sketch16.AttachmentOffset = App.Placement(V(0, 0, -60), App.Rotation())
sketch16.addGeometry([
    Part.Circle(V(10.5, 31, 0), V(0, 0, 1), 1.1),
    Part.Circle(V(10.5, 18.5, 0), V(0, 0, 1), 1.1),
    Part.Circle(V(-10.5, 18.5, 0), V(0, 0, 1), 1.1),
    Part.Circle(V(-10.5, 31, 0), V(0, 0, 1), 1.1),
], False)
sketch16.addConstraint([
    Sketcher.Constraint("Equal", 0, 1),
    Sketcher.Constraint("Equal", 1, 2),
    Sketcher.Constraint("Equal", 2, 3),
    Sketcher.Constraint("Symmetric", 1, 3, 2, 3, -2),
    Sketcher.Constraint("Symmetric", 0, 3, 3, 3, -2),
    Sketcher.Constraint("Vertical", 0, 3, 1, 3),
    Sketcher.Constraint("Diameter", 0, Q("2.3 mm")),
    Sketcher.Constraint("DistanceY", -1, 1, 0, 3, Q("31 mm")),
    Sketcher.Constraint("DistanceX", 2, 3, 1, 3, Q("21 mm")),
    Sketcher.Constraint("DistanceY", -1, 1, 1, 3, Q("18.5 mm")),
])
pocket9 = body.newObject("PartDesign::Pocket", "Pocket008")
pocket9.Profile = sketch16
pocket9.Type = "ThroughAll"

sketch17 = body.newObject("Sketcher::SketchObject", "Sketch016")
sketch17.AttachmentSupport = (doc.getObject("YZ_Plane"), [""])
sketch17.MapMode = "FlatFace"
sketch17.AttachmentOffset = App.Placement(V(0, 0, -65), App.Rotation())
sketch17.addGeometry([
    Part.Circle(V(10.5, 18.5, 0), V(0, 0, 1), 2),
    Part.Circle(V(10.5, 31, 0), V(0, 0, 1), 2),
    Part.Circle(V(-10.5, 31, 0), V(0, 0, 1), 2),
    Part.Circle(V(-10.5, 18.5, 0), V(0, 0, 1), 2),
], False)
sketch17.addConstraint([
    Sketcher.Constraint("Equal", 0, 1),
    Sketcher.Constraint("Equal", 1, 2),
    Sketcher.Constraint("Equal", 2, 3),
    Sketcher.Constraint("Symmetric", 1, 3, 2, 3, -2),
    Sketcher.Constraint("Symmetric", 0, 3, 3, 3, -2),
    Sketcher.Constraint("Vertical", 0, 3, 1, 3),
    Sketcher.Constraint("Diameter", 0, Q("4 mm")),
    Sketcher.Constraint("DistanceY", -1, 1, 1, 3, Q("31 mm")),
    Sketcher.Constraint("DistanceX", 2, 3, 1, 3, Q("21 mm")),
    Sketcher.Constraint("DistanceY", -1, 1, 0, 3, Q("18.5 mm")),
])
pocket10 = body.newObject("PartDesign::Pocket", "Pocket009")
pocket10.Profile = sketch17
pocket10.Length = 1.8
pocket10.Reversed = True

sketch18 = body.newObject("Sketcher::SketchObject", "Sketch017")
sketch18.AttachmentSupport = (doc.getObject("YZ_Plane"), [""])
sketch18.MapMode = "FlatFace"
sketch18.AttachmentOffset = App.Placement(V(0, 0, -63.2), App.Rotation())
sketch18.addGeometry([
    Part.LineSegment(V(12.1, 17.4, 0), V(8.9, 17.4, 0)),
    Part.ArcOfCircle(Part.Circle(V(10.5, 18.5, 0), V(0, 0, 1), 2), math.radians(145), math.radians(215)),
    Part.LineSegment(V(8.9, 19.6, 0), V(12.1, 19.6, 0)),
    Part.ArcOfCircle(Part.Circle(V(10.5, 18.5, 0), V(0, 0, 1), 2), math.radians(-35), math.radians(35)),
    Part.LineSegment(V(12.1, 29.9, 0), V(8.9, 29.9, 0)),
    Part.ArcOfCircle(Part.Circle(V(10.5, 31, 0), V(0, 0, 1), 2), math.radians(145), math.radians(215)),
    Part.LineSegment(V(8.9, 32.1, 0), V(12.1, 32.1, 0)),
    Part.ArcOfCircle(Part.Circle(V(10.5, 31, 0), V(0, 0, 1), 2), math.radians(-35), math.radians(35)),
], False)
sketch18.addConstraint([
    Sketcher.Constraint("Coincident", 0, 2, 1, 2),
    Sketcher.Constraint("Coincident", 1, 1, 2, 1),
    Sketcher.Constraint("Coincident", 2, 2, 3, 2),
    Sketcher.Constraint("Coincident", 3, 1, 0, 1),
    Sketcher.Constraint("Coincident", 4, 2, 5, 2),
    Sketcher.Constraint("Coincident", 5, 1, 6, 1),
    Sketcher.Constraint("Coincident", 6, 2, 7, 2),
    Sketcher.Constraint("Coincident", 7, 1, 4, 1),
    Sketcher.Constraint("Horizontal", 0),
    Sketcher.Constraint("Horizontal", 2),
    Sketcher.Constraint("Horizontal", 4),
    Sketcher.Constraint("Horizontal", 6),
    Sketcher.Constraint("Coincident", 3, 3, 1, 3),
    Sketcher.Constraint("Coincident", 7, 3, 5, 3),
    Sketcher.Constraint("Equal", 1, 3),
    Sketcher.Constraint("Equal", 3, 5),
    Sketcher.Constraint("Equal", 5, 7),
    Sketcher.Constraint("Vertical", 3, 3, 5, 3),
    Sketcher.Constraint("Vertical", 0, 2, 1, 1),
    Sketcher.Constraint("Vertical", 1, 1, 4, 2),
    Sketcher.Constraint("Vertical", 4, 2, 5, 1),
    Sketcher.Constraint("Radius", 1, Q("2 mm")),
    Sketcher.Constraint("DistanceY", -1, 1, 5, 3, Q("31 mm")),
    Sketcher.Constraint("DistanceX", -1, 1, 1, 3, Q("10.5 mm")),
    Sketcher.Constraint("DistanceY", -1, 1, 1, 3, Q("18.5 mm")),
    Sketcher.Constraint("DistanceY", 0, 2, 1, 1, Q("2.3 mm")),
])
pocket11 = body.newObject("PartDesign::Pocket", "Pocket010")
pocket11.Profile = sketch18
pocket11.Length = 0.2
pocket11.Reversed = True

sketch19 = body.newObject("Sketcher::SketchObject", "Sketch018")
sketch19.AttachmentSupport = (doc.getObject("YZ_Plane"), [""])
sketch19.MapMode = "FlatFace"
sketch19.AttachmentOffset = App.Placement(V(0, 0, -63), App.Rotation())
sketch19.addGeometry([
    Part.LineSegment(V(11.7, 17.4, 0), V(9.3, 17.4, 0)),
    Part.LineSegment(V(9.3, 17.4, 0), V(9.3, 19.6, 0)),
    Part.LineSegment(V(9.3, 19.6, 0), V(11.7, 19.6, 0)),
    Part.LineSegment(V(11.7, 19.6, 0), V(11.7, 17.4, 0)),
    Part.LineSegment(V(11.7, 29.9, 0), V(9.3, 29.9, 0)),
    Part.LineSegment(V(9.3, 29.9, 0), V(9.3, 32.1, 0)),
    Part.LineSegment(V(9.3, 32.1, 0), V(11.7, 32.1, 0)),
    Part.LineSegment(V(11.7, 32.1, 0), V(11.7, 29.9, 0)),
], False)
sketch19.addConstraint([
    Sketcher.Constraint("Coincident", 0, 2, 1, 1),
    Sketcher.Constraint("Coincident", 1, 2, 2, 1),
    Sketcher.Constraint("Coincident", 2, 2, 3, 1),
    Sketcher.Constraint("Coincident", 3, 2, 0, 1),
    Sketcher.Constraint("Coincident", 4, 2, 5, 1),
    Sketcher.Constraint("Coincident", 5, 2, 6, 1),
    Sketcher.Constraint("Coincident", 6, 2, 7, 1),
    Sketcher.Constraint("Coincident", 7, 2, 4, 1),
    Sketcher.Constraint("Horizontal", 0),
    Sketcher.Constraint("Vertical", 1),
    Sketcher.Constraint("Horizontal", 2),
    Sketcher.Constraint("Vertical", 3),
    Sketcher.Constraint("Horizontal", 4),
    Sketcher.Constraint("Vertical", 5),
    Sketcher.Constraint("Horizontal", 6),
    Sketcher.Constraint("Vertical", 7),
    Sketcher.Constraint("Vertical", 1, 2, 4, 2),
    Sketcher.Constraint("Vertical", 3, 2, 6, 2),
    Sketcher.Constraint("Equal", 6, 1),
    Sketcher.Constraint("Equal", 3, 5),
    Sketcher.Constraint("DistanceX", 0, 2, 0, 1, Q("2.3 mm")),
    Sketcher.Constraint("DistanceY", 1, 2, 4, 2, Q("10.2 mm")),
    Sketcher.Constraint("DistanceX", -1, 1, 0, 2, Q("9.35 mm")),
    Sketcher.Constraint("DistanceY", -1, 1, 0, 2, Q("17.35 mm")),
])
pocket12 = body.newObject("PartDesign::Pocket", "Pocket011")
pocket12.Profile = sketch19
pocket12.Length = 0.2
pocket12.Reversed = True
doc.recompute()

mirrored = body.newObject("PartDesign::Mirrored", "Mirrored")
mirrored.Originals = [pocket11, pocket12]
mirrored.MirrorPlane = (doc.getObject("XZ_Plane"), [""])
body.Tip = mirrored
doc.recompute()

chamfer4 = body.newObject("PartDesign::Chamfer", "Chamfer003")
chamfer4.Base = (mirrored, edges_at(mirrored, [
    (-65, 0, 25),
    (-65, 6.4, 18.6),
    (-65, 0, 12.2),
    (-65, -6.4, 18.6),
]))
chamfer4.Size = 0.6

sketch20 = body.newObject("Sketcher::SketchObject", "Sketch019")
sketch20.AttachmentSupport = (doc.getObject("YZ_Plane"), [""])
sketch20.MapMode = "FlatFace"
sketch20.AttachmentOffset = App.Placement(V(0, 0, -59), App.Rotation())
sketch20.addGeometry([
    Part.LineSegment(V(13.1, 35, 0), V(-13.1, 35, 0)),
    Part.LineSegment(V(-13.1, 35, 0), V(-13.1, 33.6, 0)),
    Part.LineSegment(V(-13.1, 33.6, 0), V(13.1, 33.6, 0)),
    Part.LineSegment(V(13.1, 33.6, 0), V(13.1, 35, 0)),
], False)
sketch20.addConstraint([
    Sketcher.Constraint("Coincident", 0, 2, 1, 1),
    Sketcher.Constraint("Coincident", 1, 2, 2, 1),
    Sketcher.Constraint("Coincident", 2, 2, 3, 1),
    Sketcher.Constraint("Coincident", 3, 2, 0, 1),
    Sketcher.Constraint("Horizontal", 0),
    Sketcher.Constraint("Vertical", 1),
    Sketcher.Constraint("Horizontal", 2),
    Sketcher.Constraint("Vertical", 3),
    Sketcher.Constraint("DistanceX", 0, 2, 0, 1, Q("26.2 mm")),
    Sketcher.Constraint("DistanceY", 1, 2, 1, 1, Q("1.4 mm")),
    Sketcher.Constraint("DistanceY", -1, 1, 0, 2, Q("35 mm")),
    Sketcher.Constraint("DistanceX", 0, 2, -1, 1, Q("13.1 mm")),
])
pocket13 = body.newObject("PartDesign::Pocket", "Pocket012")
pocket13.Profile = sketch20
pocket13.Length = 4

sketch21 = body.newObject("Sketcher::SketchObject", "Sketch020")
sketch21.AttachmentSupport = (doc.getObject("XY_Plane"), [""])
sketch21.MapMode = "FlatFace"
sketch21.AttachmentOffset = App.Placement(V(0, 0, 35), App.Rotation())
sketch21.addGeometry([
    Part.LineSegment(V(-63.4, 14.5, 0), V(-64.4, 13.5, 0)),
    Part.LineSegment(V(-64.4, 13.5, 0), V(-59, 13.5, 0)),
    Part.LineSegment(V(-59, 13.5, 0), V(-59, 14.5, 0)),
    Part.LineSegment(V(-59, 14.5, 0), V(-63.4, 14.5, 0)),
    Part.LineSegment(V(-59, -13.5, 0), V(-64.4, -13.5, 0)),
    Part.LineSegment(V(-64.4, -13.5, 0), V(-63.4, -14.5, 0)),
    Part.LineSegment(V(-63.4, -14.5, 0), V(-59, -14.5, 0)),
    Part.LineSegment(V(-59, -14.5, 0), V(-59, -13.5, 0)),
], False)
sketch21.addConstraint([
    Sketcher.Constraint("Coincident", 0, 2, 1, 1),
    Sketcher.Constraint("Coincident", 1, 2, 2, 1),
    Sketcher.Constraint("Coincident", 2, 2, 3, 1),
    Sketcher.Constraint("Coincident", 3, 2, 0, 1),
    Sketcher.Constraint("Coincident", 4, 2, 5, 1),
    Sketcher.Constraint("Coincident", 5, 2, 6, 1),
    Sketcher.Constraint("Coincident", 6, 2, 7, 1),
    Sketcher.Constraint("Coincident", 7, 2, 4, 1),
    Sketcher.Constraint("Horizontal", 1),
    Sketcher.Constraint("Vertical", 2),
    Sketcher.Constraint("Horizontal", 3),
    Sketcher.Constraint("Horizontal", 4),
    Sketcher.Constraint("Horizontal", 6),
    Sketcher.Constraint("Vertical", 7),
    Sketcher.Constraint("Symmetric", 0, 2, 4, 2, -1),
    Sketcher.Constraint("Symmetric", 3, 2, 5, 2, -1),
    Sketcher.Constraint("Perpendicular", 0, 5),
    Sketcher.Constraint("Vertical", 2, 2, 6, 2),
    Sketcher.Constraint("DistanceY", 2, 1, 2, 2, Q("1 mm")),
    Sketcher.Constraint("DistanceX", 1, 1, 1, 2, Q("5.4 mm")),
    Sketcher.Constraint("DistanceX", 1, 2, -1, 1, Q("59 mm")),
    Sketcher.Constraint("DistanceY", 4, 2, 0, 2, Q("27 mm")),
])
pad8 = body.newObject("PartDesign::Pad", "Pad007")
pad8.Profile = sketch21
pad8.Length = 32
pad8.Reversed = True

sketch22 = body.newObject("Sketcher::SketchObject", "Sketch021")
sketch22.AttachmentSupport = (doc.getObject("YZ_Plane"), [""])
sketch22.MapMode = "FlatFace"
sketch22.AttachmentOffset = App.Placement(V(0, 0, -59), App.Rotation())
sketch22.addGeometry([
    Part.LineSegment(V(8, 9, 0), V(-8, 9, 0)),
    Part.LineSegment(V(-8, 9, 0), V(-8, 0, 0)),
    Part.LineSegment(V(-8, 0, 0), V(8, 0, 0)),
    Part.LineSegment(V(8, 0, 0), V(8, 9, 0)),
], False)
sketch22.addConstraint([
    Sketcher.Constraint("Coincident", 0, 2, 1, 1),
    Sketcher.Constraint("Coincident", 1, 2, 2, 1),
    Sketcher.Constraint("Coincident", 2, 2, 3, 1),
    Sketcher.Constraint("Coincident", 3, 2, 0, 1),
    Sketcher.Constraint("Horizontal", 0),
    Sketcher.Constraint("Vertical", 1),
    Sketcher.Constraint("Horizontal", 2),
    Sketcher.Constraint("Vertical", 3),
    Sketcher.Constraint("Symmetric", 1, 2, 2, 2, -1, 1),
    Sketcher.Constraint("DistanceX", 0, 2, 0, 1, Q("16.6 mm")),
    Sketcher.Constraint("DistanceY", 1, 2, 1, 1, Q("8.54 mm")),
])
pocket14 = body.newObject("PartDesign::Pocket", "Pocket013")
pocket14.Profile = sketch22
pocket14.Length = 1

sketch23 = body.newObject("Sketcher::SketchObject", "Sketch022")
sketch23.AttachmentSupport = (doc.getObject("XY_Plane"), [""])
sketch23.MapMode = "FlatFace"
sketch23.AttachmentOffset = App.Placement(V(0, 0, 35), App.Rotation())
sketch23.addGeometry([
    Part.LineSegment(V(-59, 14.5, 0), V(-63.4, 14.5, 0)),
    Part.LineSegment(V(-63.4, 14.5, 0), V(-65, 12.9, 0)),
    Part.LineSegment(V(-65, 12.9, 0), V(-65, -12.9, 0)),
    Part.LineSegment(V(-65, -12.9, 0), V(-63.4, -14.5, 0)),
    Part.LineSegment(V(-63.4, -14.5, 0), V(-59, -14.5, 0)),
    Part.LineSegment(V(-59, -14.5, 0), V(-59, 14.5, 0)),
], False)
sketch23.addConstraint([
    Sketcher.Constraint("Coincident", 0, 2, 1, 1),
    Sketcher.Constraint("Coincident", 1, 2, 2, 1),
    Sketcher.Constraint("Coincident", 2, 2, 3, 1),
    Sketcher.Constraint("Coincident", 3, 2, 4, 1),
    Sketcher.Constraint("Coincident", 4, 2, 5, 1),
    Sketcher.Constraint("Coincident", 5, 2, 0, 1),
    Sketcher.Constraint("Horizontal", 0),
    Sketcher.Constraint("Vertical", 2),
    Sketcher.Constraint("Horizontal", 4),
    Sketcher.Constraint("Vertical", 5),
    Sketcher.Constraint("Symmetric", 0, 2, 3, 2, -1),
    Sketcher.Constraint("Perpendicular", 1, 3),
    Sketcher.Constraint("Equal", 1, 3),
    Sketcher.Constraint("DistanceY", 5, 1, 5, 2, Q("29 mm")),
    Sketcher.Constraint("DistanceX", 0, 2, 0, 1, Q("4.4 mm")),
    Sketcher.Constraint("DistanceY", 2, 2, 2, 1, Q("25.8 mm")),
    Sketcher.Constraint("DistanceX", 1, 2, -1, 1, Q("65 mm")),
])
pad9 = body.newObject("PartDesign::Pad", "Pad008")
pad9.Profile = sketch23
pad9.Length = 2
doc.recompute()

chamfer5 = body.newObject("PartDesign::Chamfer", "Chamfer004")
chamfer5.Base = (pad9, edges_at(pad9, [(-65, 0, 37)]))
chamfer5.Size = 1

doc.recompute()
